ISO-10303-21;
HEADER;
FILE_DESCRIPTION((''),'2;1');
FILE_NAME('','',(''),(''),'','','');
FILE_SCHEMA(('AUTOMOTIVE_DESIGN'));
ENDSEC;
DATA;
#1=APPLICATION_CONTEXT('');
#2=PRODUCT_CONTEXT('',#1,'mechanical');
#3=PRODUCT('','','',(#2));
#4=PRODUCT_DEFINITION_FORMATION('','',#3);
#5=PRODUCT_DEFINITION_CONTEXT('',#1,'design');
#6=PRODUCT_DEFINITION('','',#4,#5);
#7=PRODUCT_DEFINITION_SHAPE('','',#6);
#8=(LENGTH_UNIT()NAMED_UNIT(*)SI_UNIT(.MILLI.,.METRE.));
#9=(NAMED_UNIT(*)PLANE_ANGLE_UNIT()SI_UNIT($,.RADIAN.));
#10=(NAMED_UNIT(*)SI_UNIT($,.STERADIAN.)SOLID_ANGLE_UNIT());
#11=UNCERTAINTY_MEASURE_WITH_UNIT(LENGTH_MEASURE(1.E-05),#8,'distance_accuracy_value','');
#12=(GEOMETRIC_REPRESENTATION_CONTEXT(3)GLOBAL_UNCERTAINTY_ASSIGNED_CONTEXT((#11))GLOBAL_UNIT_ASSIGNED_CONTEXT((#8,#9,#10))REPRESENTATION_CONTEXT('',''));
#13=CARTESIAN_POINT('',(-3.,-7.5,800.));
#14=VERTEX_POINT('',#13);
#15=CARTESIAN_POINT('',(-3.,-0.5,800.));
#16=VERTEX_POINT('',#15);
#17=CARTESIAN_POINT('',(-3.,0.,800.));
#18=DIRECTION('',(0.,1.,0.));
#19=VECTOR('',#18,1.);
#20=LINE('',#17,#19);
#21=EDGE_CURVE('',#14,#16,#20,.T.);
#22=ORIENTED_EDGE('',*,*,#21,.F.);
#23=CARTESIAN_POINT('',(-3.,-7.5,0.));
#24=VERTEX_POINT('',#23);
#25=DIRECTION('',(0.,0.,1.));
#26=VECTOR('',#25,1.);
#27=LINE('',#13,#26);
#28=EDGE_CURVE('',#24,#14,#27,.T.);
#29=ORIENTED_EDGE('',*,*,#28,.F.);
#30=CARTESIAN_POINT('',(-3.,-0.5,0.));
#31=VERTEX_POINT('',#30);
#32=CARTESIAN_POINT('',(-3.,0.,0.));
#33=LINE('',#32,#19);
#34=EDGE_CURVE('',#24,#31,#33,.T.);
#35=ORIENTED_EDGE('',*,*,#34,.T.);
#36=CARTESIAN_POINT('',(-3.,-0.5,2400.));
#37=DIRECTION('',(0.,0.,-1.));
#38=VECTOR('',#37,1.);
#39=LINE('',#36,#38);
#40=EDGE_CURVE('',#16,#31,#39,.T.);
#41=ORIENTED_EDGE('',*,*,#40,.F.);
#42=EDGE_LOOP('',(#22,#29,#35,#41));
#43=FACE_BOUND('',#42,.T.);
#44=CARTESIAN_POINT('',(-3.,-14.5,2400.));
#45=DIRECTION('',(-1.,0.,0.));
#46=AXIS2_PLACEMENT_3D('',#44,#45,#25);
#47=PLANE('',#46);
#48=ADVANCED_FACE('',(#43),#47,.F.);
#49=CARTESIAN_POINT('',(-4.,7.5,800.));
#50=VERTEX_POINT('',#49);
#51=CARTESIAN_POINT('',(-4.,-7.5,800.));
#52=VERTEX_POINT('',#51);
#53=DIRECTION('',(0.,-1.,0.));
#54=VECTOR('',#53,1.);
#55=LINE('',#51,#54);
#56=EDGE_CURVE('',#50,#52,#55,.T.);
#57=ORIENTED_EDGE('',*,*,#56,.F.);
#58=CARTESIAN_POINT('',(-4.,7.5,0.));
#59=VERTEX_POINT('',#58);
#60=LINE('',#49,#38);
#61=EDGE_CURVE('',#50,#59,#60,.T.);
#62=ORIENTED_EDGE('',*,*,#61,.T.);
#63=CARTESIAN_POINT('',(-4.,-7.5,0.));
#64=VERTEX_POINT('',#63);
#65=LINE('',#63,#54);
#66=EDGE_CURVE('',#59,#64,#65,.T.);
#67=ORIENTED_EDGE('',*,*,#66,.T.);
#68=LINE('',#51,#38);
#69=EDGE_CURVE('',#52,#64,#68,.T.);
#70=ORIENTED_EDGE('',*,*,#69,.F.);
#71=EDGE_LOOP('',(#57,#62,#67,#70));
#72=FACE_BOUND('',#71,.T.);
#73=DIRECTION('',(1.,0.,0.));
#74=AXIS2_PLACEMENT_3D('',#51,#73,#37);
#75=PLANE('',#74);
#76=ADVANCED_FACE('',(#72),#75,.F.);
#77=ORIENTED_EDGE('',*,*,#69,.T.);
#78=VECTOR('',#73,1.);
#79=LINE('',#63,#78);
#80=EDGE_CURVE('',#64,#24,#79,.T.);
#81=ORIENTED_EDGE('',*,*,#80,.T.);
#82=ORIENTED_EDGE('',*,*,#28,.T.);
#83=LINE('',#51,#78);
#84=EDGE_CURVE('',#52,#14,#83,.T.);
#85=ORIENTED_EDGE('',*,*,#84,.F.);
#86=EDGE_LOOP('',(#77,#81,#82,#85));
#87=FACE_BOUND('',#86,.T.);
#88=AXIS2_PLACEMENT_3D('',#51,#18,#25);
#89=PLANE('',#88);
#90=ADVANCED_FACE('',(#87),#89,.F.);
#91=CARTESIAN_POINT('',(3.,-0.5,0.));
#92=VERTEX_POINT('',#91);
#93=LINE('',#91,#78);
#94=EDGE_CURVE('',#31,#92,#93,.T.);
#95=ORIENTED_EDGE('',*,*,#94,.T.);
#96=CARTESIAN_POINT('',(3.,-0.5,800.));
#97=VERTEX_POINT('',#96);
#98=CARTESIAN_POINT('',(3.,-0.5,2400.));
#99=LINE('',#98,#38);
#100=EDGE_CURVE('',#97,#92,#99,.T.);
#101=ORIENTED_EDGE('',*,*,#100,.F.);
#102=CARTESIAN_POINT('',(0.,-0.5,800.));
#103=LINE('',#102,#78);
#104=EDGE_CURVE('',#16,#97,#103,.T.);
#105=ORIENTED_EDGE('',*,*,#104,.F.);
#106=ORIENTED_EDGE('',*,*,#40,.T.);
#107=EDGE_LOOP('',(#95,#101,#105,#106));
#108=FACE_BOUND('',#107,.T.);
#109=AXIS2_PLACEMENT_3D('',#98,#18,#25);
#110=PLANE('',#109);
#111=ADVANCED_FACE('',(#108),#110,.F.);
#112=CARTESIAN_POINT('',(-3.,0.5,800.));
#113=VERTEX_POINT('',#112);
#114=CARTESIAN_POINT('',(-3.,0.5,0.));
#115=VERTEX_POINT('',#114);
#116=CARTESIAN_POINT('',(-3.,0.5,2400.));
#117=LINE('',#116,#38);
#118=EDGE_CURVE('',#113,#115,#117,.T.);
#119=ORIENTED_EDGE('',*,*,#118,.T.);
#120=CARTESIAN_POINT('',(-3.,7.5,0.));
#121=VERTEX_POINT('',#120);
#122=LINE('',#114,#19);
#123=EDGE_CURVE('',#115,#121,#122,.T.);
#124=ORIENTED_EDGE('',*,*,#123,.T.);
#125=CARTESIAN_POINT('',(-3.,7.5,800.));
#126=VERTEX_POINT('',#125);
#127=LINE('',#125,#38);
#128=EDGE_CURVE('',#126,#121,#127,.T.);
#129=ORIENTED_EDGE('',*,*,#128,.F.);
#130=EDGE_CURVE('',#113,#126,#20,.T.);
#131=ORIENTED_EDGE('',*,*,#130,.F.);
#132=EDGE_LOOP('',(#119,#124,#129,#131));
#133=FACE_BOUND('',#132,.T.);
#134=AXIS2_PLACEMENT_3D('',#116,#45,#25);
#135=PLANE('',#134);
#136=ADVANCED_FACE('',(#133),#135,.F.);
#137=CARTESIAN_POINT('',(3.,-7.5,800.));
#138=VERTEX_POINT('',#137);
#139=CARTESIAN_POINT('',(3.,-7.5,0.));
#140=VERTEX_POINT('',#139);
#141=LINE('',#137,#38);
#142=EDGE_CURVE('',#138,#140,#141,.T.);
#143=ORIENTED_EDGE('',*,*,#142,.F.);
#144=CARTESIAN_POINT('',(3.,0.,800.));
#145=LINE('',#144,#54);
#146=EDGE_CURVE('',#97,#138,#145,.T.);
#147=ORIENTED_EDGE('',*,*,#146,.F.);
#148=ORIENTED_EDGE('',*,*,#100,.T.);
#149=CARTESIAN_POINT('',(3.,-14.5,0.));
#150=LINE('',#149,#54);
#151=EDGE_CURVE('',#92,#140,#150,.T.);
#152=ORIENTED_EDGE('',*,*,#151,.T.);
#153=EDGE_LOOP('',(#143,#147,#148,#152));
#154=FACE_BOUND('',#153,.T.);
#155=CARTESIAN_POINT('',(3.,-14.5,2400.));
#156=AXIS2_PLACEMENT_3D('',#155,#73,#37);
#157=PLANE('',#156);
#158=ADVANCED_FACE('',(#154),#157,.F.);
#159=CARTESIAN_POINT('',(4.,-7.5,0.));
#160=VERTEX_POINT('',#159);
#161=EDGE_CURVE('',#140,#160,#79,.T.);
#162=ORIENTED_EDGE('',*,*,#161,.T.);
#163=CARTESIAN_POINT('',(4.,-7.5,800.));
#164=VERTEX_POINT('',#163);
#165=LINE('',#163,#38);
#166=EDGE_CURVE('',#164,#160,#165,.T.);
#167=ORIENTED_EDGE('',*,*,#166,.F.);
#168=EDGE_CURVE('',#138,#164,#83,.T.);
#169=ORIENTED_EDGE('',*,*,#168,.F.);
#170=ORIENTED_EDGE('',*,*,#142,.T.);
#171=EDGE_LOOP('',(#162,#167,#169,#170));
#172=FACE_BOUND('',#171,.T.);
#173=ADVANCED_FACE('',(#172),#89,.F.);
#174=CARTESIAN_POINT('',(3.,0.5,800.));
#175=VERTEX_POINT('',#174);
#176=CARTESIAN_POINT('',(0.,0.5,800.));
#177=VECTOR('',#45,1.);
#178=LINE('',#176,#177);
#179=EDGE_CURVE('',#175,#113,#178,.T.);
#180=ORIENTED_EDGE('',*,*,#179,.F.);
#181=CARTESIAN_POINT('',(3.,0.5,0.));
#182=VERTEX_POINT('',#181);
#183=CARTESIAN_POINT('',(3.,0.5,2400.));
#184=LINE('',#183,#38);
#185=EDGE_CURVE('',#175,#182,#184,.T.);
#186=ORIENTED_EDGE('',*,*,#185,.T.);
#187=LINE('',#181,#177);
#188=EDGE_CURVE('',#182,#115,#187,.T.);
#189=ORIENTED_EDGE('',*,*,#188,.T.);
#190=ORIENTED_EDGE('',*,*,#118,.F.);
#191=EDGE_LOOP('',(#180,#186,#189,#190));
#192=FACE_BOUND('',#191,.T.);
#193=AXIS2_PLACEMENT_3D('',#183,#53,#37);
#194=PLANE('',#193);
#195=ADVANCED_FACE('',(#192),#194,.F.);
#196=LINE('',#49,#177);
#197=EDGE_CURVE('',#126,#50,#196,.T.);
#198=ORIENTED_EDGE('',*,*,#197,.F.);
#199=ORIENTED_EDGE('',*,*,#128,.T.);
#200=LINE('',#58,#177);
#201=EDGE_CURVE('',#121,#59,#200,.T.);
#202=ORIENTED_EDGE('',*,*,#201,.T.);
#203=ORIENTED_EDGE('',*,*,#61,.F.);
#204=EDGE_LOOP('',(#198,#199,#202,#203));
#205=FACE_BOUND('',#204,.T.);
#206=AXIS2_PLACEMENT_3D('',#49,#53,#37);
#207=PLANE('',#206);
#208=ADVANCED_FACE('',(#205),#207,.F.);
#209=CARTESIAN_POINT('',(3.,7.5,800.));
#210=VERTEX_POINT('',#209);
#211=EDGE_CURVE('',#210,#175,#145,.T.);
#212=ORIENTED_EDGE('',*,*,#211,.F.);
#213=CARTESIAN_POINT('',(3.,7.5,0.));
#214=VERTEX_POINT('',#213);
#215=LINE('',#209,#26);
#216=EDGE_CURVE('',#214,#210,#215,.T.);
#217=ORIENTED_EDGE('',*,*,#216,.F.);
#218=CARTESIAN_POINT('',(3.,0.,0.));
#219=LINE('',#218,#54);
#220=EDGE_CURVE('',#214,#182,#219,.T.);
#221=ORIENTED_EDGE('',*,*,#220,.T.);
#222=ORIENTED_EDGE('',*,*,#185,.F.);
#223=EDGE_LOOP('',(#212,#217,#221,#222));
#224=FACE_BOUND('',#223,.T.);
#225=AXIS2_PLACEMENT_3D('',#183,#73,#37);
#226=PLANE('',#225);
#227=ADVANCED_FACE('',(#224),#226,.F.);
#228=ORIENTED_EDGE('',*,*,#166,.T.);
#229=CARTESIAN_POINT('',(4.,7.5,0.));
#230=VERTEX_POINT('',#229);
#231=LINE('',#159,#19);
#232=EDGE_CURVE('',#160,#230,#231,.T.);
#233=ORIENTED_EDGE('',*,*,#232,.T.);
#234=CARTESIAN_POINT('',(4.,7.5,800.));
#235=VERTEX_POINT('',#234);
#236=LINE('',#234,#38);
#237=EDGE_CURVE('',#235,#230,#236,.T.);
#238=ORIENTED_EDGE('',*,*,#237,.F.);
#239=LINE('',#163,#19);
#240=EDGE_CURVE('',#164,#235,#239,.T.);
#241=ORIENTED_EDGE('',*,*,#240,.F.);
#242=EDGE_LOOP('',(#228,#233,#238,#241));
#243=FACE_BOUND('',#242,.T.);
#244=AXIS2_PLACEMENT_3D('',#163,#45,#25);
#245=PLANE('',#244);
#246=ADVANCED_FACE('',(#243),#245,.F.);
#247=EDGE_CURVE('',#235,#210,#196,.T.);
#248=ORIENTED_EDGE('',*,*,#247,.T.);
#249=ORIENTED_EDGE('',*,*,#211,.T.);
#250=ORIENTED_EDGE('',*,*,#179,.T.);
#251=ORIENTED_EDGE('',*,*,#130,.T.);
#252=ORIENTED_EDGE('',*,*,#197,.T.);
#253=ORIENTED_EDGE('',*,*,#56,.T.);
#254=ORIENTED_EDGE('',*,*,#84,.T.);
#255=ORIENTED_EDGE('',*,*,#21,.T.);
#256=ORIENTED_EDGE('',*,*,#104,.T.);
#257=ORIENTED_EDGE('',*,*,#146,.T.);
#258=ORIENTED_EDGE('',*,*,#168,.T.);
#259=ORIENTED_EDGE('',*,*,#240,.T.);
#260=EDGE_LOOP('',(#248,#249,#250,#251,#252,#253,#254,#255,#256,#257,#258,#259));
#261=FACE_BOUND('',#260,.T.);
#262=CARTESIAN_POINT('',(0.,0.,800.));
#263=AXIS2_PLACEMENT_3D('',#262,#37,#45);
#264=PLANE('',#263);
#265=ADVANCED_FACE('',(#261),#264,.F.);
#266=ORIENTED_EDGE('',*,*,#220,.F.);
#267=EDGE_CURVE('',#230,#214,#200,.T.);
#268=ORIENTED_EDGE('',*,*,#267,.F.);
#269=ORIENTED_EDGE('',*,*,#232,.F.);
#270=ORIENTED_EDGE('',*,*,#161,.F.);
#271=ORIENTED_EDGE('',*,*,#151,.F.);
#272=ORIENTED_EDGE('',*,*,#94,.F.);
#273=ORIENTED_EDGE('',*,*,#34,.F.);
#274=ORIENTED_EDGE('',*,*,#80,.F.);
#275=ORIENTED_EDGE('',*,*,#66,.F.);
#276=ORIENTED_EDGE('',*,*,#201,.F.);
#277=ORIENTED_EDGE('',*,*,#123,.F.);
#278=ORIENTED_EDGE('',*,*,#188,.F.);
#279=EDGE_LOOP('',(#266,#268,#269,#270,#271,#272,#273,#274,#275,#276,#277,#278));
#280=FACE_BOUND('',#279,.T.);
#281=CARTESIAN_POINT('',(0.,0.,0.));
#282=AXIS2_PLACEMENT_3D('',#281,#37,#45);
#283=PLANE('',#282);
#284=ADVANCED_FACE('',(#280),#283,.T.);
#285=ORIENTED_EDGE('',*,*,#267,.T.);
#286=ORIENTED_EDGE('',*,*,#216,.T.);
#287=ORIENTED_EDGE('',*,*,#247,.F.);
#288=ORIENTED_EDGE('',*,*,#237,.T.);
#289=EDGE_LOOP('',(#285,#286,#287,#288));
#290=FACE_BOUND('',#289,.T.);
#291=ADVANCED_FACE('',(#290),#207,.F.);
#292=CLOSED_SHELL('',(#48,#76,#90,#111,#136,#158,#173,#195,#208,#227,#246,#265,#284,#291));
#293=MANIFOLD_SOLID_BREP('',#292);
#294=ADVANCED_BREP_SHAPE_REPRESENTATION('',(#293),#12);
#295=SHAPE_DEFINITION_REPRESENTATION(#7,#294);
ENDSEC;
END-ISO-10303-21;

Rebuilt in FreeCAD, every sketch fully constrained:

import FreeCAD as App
import Part
import Sketcher


def add_polygon(sketch, points):
    """Adds a closed chain of lines whose ends are joined by coincident constraints."""
    first, n = sketch.GeometryCount, len(points)
    for a, b in zip(points, points[1:] + points[:1]):
        sketch.addGeometry(Part.LineSegment(App.Vector(*a, 0), App.Vector(*b, 0)), False)
    for i in range(n):
        sketch.addConstraint(Sketcher.Constraint("Coincident", first + i, 2, first + (i + 1) % n, 1))

doc = App.newDocument("Part")
params = doc.addObject("Spreadsheet::Sheet", "Params")
for row, (alias, value) in enumerate([
    ("sketch1_width", "8 mm"),
    ("sketch1_height", "15 mm"),
    ("pad1_length", "800 mm"),
    ("sketch2_width", "6 mm"),
    ("sketch2_height", "14 mm"),
    ("pocket1_length", "2400 mm"),
], start=1):
    params.set(f"A{row}", alias)
    params.set(f"B{row}", "=" + value)
    params.setAlias(f"B{row}", alias)

body = doc.addObject("PartDesign::Body", "Body")

sketch1 = body.newObject("Sketcher::SketchObject", "Sketch")
sketch1.AttachmentSupport = (doc.getObject("XY_Plane"), [""])
sketch1.MapMode = "FlatFace"
add_polygon(sketch1, [(-4, 7.5), (-4, -7.5), (4, -7.5), (4, 7.5)])
sketch1.addConstraint(Sketcher.Constraint("Vertical", 0))
sketch1.addConstraint(Sketcher.Constraint("Horizontal", 1))
sketch1.addConstraint(Sketcher.Constraint("Vertical", 2))
sketch1.addConstraint(Sketcher.Constraint("Horizontal", 3))
sketch1.addConstraint(Sketcher.Constraint("Symmetric", 0, 2, 2, 2, -1, 1))
sketch1.addConstraint(Sketcher.Constraint("DistanceX", 1, 1, 1, 2, 8.0))
sketch1.addConstraint(Sketcher.Constraint("DistanceY", 0, 2, 0, 1, 15.0))
sketch1.setExpression("Constraints[9]", "Params.sketch1_width")
sketch1.setExpression("Constraints[10]", "Params.sketch1_height")
pad1 = body.newObject("PartDesign::Pad", "Pad")
pad1.Profile = sketch1
pad1.setExpression("Length", "Params.pad1_length")

sketch2 = body.newObject("Sketcher::SketchObject", "Sketch001")
sketch2.AttachmentSupport = (doc.getObject("XY_Plane"), [""])
sketch2.MapMode = "FlatFace"
add_polygon(sketch2, [(3, -0.5), (3, -14.5), (-3, -14.5), (-3, -0.5)])
add_polygon(sketch2, [(3, 14.5), (3, 0.5), (-3, 0.5), (-3, 14.5)])
sketch2.addConstraint(Sketcher.Constraint("Vertical", 0))
sketch2.addConstraint(Sketcher.Constraint("Horizontal", 1))
sketch2.addConstraint(Sketcher.Constraint("Vertical", 2))
sketch2.addConstraint(Sketcher.Constraint("Horizontal", 3))
sketch2.addConstraint(Sketcher.Constraint("Vertical", 4))
sketch2.addConstraint(Sketcher.Constraint("Horizontal", 5))
sketch2.addConstraint(Sketcher.Constraint("Vertical", 6))
sketch2.addConstraint(Sketcher.Constraint("Horizontal", 7))
sketch2.addConstraint(Sketcher.Constraint("Symmetric", 2, 2, 4, 2, -1, 1))
sketch2.addConstraint(Sketcher.Constraint("Symmetric", 0, 2, 6, 2, -1, 1))
sketch2.addConstraint(Sketcher.Constraint("Vertical", 3, 2, 4, 2))
sketch2.addConstraint(Sketcher.Constraint("DistanceX", 1, 2, 1, 1, 6.0))
sketch2.addConstraint(Sketcher.Constraint("DistanceY", 0, 2, 0, 1, 14.0))
sketch2.addConstraint(Sketcher.Constraint("DistanceY", 3, 2, 4, 2, 1.0))
sketch2.setExpression("Constraints[19]", "Params.sketch2_width")
sketch2.setExpression("Constraints[20]", "Params.sketch2_height")
pocket1 = body.newObject("PartDesign::Pocket", "Pocket")
pocket1.Profile = sketch2
pocket1.setExpression("Length", "Params.pocket1_length")
pocket1.Reversed = True

doc.recompute()
